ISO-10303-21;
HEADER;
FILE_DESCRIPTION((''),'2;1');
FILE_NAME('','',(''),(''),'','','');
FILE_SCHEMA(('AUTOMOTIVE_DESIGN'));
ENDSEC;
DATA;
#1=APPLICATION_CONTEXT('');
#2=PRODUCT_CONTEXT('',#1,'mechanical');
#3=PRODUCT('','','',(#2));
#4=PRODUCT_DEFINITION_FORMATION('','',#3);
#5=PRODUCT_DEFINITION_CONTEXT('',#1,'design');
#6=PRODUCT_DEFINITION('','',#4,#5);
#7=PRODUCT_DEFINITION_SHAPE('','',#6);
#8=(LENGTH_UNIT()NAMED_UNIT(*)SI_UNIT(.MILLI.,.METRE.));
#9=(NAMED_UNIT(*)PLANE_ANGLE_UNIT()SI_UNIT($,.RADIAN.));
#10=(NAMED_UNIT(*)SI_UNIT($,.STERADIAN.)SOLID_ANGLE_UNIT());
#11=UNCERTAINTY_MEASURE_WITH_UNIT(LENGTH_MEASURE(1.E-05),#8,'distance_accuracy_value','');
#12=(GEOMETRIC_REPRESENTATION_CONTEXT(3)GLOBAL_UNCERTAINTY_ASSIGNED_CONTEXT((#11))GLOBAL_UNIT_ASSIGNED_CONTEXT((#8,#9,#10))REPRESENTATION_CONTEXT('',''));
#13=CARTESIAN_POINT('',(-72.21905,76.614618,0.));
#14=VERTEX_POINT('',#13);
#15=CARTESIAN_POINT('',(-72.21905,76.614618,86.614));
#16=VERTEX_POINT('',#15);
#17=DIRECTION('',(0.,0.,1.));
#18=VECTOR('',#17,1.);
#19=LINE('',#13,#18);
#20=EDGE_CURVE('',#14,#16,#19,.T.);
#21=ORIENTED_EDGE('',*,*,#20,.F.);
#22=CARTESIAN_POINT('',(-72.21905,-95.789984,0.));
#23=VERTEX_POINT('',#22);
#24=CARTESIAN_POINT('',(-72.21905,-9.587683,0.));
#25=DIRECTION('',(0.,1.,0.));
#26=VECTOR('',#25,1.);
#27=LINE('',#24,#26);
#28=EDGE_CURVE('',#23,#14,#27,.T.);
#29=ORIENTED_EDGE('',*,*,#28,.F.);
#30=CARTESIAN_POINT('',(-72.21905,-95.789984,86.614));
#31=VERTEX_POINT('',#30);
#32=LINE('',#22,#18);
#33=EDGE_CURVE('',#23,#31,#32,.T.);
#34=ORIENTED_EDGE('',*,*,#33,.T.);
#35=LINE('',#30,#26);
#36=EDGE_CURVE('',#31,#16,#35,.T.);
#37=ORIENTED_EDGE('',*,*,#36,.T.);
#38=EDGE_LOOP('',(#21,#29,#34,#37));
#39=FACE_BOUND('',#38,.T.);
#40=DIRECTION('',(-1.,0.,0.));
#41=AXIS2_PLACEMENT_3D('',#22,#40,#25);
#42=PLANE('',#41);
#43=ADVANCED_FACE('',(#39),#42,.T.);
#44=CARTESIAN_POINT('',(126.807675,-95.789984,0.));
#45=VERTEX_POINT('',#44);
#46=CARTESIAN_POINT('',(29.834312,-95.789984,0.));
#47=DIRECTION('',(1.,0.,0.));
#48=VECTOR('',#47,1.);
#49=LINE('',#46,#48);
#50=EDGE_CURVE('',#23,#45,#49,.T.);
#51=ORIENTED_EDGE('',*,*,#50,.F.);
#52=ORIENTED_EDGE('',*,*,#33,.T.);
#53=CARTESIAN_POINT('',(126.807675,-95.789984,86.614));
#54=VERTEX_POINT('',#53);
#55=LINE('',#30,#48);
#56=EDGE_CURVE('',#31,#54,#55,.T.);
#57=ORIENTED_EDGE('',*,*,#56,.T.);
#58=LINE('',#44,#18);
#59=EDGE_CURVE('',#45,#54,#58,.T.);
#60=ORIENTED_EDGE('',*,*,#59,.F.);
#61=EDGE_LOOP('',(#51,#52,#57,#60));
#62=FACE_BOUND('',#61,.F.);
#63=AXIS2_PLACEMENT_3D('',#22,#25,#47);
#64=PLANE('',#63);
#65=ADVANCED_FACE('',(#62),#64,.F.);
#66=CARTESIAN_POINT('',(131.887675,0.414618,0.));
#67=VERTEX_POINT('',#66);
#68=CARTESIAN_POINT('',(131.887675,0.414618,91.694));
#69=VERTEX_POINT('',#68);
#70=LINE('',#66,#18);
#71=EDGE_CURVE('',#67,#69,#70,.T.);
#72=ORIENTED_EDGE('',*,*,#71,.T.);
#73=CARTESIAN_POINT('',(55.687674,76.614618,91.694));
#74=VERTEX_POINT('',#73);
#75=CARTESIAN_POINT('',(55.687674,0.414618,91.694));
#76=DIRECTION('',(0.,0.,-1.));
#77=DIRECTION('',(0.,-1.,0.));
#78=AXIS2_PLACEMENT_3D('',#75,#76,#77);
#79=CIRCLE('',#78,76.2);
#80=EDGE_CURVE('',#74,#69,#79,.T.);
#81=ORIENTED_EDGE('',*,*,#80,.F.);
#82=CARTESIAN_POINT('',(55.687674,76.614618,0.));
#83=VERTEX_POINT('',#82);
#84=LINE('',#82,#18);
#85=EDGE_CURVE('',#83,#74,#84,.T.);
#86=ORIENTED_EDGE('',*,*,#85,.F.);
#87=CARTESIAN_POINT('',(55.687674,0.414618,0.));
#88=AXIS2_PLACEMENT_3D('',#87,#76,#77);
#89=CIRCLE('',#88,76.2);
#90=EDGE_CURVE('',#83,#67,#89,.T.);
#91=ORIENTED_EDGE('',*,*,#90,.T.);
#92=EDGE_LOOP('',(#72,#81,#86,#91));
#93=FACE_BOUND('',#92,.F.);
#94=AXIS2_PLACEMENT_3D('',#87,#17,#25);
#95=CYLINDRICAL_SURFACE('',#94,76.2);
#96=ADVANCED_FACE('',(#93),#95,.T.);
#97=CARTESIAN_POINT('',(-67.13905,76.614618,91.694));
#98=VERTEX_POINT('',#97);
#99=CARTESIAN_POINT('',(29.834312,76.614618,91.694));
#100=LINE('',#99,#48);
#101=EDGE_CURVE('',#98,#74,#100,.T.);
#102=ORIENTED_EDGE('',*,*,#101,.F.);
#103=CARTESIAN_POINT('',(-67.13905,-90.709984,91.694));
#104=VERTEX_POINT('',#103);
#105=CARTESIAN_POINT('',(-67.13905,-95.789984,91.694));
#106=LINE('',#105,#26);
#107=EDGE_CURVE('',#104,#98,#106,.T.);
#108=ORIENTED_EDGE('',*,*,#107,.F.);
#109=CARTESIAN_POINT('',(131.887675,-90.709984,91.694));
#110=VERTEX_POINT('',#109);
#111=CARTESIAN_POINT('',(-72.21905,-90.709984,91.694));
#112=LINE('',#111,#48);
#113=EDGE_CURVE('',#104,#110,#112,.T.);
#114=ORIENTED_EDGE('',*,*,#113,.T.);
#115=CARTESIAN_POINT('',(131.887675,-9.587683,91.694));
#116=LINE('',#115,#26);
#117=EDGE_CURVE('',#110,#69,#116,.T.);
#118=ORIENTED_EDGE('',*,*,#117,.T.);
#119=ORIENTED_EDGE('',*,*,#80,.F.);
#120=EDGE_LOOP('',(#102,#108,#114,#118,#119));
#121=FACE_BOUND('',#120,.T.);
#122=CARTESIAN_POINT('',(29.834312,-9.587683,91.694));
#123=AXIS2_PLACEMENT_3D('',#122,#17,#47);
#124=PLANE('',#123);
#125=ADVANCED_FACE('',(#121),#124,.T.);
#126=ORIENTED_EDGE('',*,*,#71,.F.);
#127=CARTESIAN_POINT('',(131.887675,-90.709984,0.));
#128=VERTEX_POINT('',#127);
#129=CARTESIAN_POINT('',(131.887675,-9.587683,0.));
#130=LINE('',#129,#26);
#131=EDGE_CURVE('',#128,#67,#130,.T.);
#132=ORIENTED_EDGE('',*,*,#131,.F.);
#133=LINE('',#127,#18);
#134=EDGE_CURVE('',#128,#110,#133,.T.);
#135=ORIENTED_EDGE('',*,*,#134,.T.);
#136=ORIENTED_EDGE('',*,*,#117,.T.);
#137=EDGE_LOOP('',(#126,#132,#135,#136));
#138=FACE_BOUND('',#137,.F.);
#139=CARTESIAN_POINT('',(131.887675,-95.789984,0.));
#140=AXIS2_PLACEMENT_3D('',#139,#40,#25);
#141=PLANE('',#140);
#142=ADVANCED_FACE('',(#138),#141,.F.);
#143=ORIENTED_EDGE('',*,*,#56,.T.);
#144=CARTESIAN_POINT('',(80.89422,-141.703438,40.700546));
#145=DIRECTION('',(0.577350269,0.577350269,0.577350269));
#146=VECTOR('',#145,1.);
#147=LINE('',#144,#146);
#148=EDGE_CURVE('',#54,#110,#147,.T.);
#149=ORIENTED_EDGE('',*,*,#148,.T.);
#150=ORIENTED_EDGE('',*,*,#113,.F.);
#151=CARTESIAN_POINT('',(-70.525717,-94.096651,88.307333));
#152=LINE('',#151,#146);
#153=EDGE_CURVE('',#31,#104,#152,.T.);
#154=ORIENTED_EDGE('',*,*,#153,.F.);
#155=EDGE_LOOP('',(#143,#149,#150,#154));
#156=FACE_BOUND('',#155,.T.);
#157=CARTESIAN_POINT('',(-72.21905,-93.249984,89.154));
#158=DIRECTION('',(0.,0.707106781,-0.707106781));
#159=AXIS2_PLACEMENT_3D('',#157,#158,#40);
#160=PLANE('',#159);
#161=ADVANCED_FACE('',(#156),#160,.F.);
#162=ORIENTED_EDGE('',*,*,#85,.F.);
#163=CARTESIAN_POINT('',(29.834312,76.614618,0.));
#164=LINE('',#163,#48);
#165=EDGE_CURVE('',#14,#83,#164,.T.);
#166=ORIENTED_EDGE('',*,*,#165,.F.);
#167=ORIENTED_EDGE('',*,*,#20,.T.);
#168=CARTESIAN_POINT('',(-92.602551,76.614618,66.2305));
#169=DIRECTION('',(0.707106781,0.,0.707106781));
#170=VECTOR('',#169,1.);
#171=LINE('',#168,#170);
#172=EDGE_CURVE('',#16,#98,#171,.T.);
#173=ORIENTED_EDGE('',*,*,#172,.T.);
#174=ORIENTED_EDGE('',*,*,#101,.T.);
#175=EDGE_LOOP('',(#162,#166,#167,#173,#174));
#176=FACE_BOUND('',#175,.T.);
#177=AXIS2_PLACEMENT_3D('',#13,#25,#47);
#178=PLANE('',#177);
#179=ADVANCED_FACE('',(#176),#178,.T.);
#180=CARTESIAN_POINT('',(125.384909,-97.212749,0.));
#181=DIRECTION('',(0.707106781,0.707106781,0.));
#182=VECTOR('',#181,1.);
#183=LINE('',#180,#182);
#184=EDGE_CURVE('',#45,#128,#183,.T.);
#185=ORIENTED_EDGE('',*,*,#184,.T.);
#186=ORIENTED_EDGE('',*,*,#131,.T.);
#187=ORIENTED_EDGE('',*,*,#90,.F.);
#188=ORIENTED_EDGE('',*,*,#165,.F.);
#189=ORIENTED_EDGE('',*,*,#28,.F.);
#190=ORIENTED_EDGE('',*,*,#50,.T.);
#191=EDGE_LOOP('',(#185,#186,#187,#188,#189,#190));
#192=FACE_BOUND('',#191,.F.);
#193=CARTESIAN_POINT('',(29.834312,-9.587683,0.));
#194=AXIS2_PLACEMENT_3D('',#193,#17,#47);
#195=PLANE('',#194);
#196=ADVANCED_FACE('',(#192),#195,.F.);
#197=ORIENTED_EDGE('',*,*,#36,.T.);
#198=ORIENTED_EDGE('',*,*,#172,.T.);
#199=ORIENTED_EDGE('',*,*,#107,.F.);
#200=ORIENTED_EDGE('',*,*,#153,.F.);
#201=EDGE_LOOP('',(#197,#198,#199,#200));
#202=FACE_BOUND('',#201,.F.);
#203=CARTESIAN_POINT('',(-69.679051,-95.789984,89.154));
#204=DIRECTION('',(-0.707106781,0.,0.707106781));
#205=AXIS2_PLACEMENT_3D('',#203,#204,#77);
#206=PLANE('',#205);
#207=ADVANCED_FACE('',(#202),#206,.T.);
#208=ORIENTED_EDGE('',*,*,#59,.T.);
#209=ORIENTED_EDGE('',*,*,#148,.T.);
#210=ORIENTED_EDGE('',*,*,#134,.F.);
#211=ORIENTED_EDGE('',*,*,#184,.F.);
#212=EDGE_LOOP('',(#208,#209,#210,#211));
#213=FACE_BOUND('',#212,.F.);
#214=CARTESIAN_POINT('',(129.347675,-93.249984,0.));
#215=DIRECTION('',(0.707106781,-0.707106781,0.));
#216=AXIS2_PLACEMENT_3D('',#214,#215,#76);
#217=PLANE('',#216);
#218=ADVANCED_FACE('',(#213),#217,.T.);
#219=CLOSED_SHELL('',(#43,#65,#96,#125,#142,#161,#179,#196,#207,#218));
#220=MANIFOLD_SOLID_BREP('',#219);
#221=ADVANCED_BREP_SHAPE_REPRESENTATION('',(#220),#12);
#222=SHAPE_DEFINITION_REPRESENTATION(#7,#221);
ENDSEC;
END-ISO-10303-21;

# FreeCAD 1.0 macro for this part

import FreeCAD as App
import Part
import Sketcher
from FreeCAD import Vector
Q = App.Units.Quantity


def edges_at(feature, points):
    """Names of the edges that pass closest to the given points."""
    edges = feature.Shape.Edges
    near = lambda p: min(range(len(edges)), key=lambda i: edges[i].distToShape(Part.Vertex(*p))[0])
    return sorted({f"Edge{near(p) + 1}" for p in points})

doc = App.newDocument("Part")
params = doc.addObject("Spreadsheet::Sheet", "Params")
for row, (alias, value) in enumerate([
    ("pad1_length", "3.61 in"),
    ("chamfer_size", "0.2 in"),
    ("fillet_radius", "3 in"),
], start=1):
    params.set(f"A{row}", alias)
    params.set(f"B{row}", "=" + value)
    params.setAlias(f"B{row}", alias)

body = doc.addObject("PartDesign::Body", "Body")

sketch1 = body.newObject("Sketcher::SketchObject", "Sketch")
sketch1.AttachmentSupport = (doc.getObject("XY_Plane"), [""])
sketch1.MapMode = "FlatFace"
sketch1.addGeometry(Part.LineSegment(Vector(-72.21905, 76.614618, 0), Vector(-72.21905, -95.789984, 0)), False)
sketch1.addGeometry(Part.LineSegment(Vector(-72.21905, -95.789984, 0), Vector(131.887675, -95.789984, 0)), False)
sketch1.addGeometry(Part.LineSegment(Vector(131.887675, -95.789984, 0), Vector(131.887675, 76.614618, 0)), False)
sketch1.addGeometry(Part.LineSegment(Vector(131.887675, 76.614618, 0), Vector(-72.21905, 76.614618, 0)), False)
sketch1.addConstraint(Sketcher.Constraint("Coincident", 0, 2, 1, 1))
sketch1.addConstraint(Sketcher.Constraint("Coincident", 1, 2, 2, 1))
sketch1.addConstraint(Sketcher.Constraint("Coincident", 2, 2, 3, 1))
sketch1.addConstraint(Sketcher.Constraint("Coincident", 3, 2, 0, 1))
sketch1.addConstraint(Sketcher.Constraint("Vertical", 0))
sketch1.addConstraint(Sketcher.Constraint("Horizontal", 1))
sketch1.addConstraint(Sketcher.Constraint("Vertical", 2))
sketch1.addConstraint(Sketcher.Constraint("Horizontal", 3))
sketch1.addConstraint(Sketcher.Constraint("DistanceX", 1, 1, 1, 2, Q("204.106725 mm")))
sketch1.addConstraint(Sketcher.Constraint("DistanceY", 0, 2, 0, 1, Q("172.404602 mm")))
sketch1.addConstraint(Sketcher.Constraint("DistanceX", 0, 2, -1, 1, Q("72.21905 mm")))
sketch1.addConstraint(Sketcher.Constraint("DistanceY", 0, 2, -1, 1, Q("95.789984 mm")))
pad1 = body.newObject("PartDesign::Pad", "Pad")
pad1.Profile = sketch1
pad1.setExpression("Length", "Params.pad1_length")
doc.recompute()

chamfer = body.newObject("PartDesign::Chamfer", "Chamfer")
chamfer.Base = (pad1, edges_at(pad1, [(29.834, -95.79, 91.694), (-72.219, -9.588, 91.694), (131.888, -95.79, 45.847)]))
chamfer.setExpression("Size", "Params.chamfer_size")
doc.recompute()

fillet = body.newObject("PartDesign::Fillet", "Fillet")
fillet.Base = (chamfer, edges_at(chamfer, [(131.888, 76.615, 45.847)]))
fillet.setExpression("Radius", "Params.fillet_radius")

doc.recompute()
